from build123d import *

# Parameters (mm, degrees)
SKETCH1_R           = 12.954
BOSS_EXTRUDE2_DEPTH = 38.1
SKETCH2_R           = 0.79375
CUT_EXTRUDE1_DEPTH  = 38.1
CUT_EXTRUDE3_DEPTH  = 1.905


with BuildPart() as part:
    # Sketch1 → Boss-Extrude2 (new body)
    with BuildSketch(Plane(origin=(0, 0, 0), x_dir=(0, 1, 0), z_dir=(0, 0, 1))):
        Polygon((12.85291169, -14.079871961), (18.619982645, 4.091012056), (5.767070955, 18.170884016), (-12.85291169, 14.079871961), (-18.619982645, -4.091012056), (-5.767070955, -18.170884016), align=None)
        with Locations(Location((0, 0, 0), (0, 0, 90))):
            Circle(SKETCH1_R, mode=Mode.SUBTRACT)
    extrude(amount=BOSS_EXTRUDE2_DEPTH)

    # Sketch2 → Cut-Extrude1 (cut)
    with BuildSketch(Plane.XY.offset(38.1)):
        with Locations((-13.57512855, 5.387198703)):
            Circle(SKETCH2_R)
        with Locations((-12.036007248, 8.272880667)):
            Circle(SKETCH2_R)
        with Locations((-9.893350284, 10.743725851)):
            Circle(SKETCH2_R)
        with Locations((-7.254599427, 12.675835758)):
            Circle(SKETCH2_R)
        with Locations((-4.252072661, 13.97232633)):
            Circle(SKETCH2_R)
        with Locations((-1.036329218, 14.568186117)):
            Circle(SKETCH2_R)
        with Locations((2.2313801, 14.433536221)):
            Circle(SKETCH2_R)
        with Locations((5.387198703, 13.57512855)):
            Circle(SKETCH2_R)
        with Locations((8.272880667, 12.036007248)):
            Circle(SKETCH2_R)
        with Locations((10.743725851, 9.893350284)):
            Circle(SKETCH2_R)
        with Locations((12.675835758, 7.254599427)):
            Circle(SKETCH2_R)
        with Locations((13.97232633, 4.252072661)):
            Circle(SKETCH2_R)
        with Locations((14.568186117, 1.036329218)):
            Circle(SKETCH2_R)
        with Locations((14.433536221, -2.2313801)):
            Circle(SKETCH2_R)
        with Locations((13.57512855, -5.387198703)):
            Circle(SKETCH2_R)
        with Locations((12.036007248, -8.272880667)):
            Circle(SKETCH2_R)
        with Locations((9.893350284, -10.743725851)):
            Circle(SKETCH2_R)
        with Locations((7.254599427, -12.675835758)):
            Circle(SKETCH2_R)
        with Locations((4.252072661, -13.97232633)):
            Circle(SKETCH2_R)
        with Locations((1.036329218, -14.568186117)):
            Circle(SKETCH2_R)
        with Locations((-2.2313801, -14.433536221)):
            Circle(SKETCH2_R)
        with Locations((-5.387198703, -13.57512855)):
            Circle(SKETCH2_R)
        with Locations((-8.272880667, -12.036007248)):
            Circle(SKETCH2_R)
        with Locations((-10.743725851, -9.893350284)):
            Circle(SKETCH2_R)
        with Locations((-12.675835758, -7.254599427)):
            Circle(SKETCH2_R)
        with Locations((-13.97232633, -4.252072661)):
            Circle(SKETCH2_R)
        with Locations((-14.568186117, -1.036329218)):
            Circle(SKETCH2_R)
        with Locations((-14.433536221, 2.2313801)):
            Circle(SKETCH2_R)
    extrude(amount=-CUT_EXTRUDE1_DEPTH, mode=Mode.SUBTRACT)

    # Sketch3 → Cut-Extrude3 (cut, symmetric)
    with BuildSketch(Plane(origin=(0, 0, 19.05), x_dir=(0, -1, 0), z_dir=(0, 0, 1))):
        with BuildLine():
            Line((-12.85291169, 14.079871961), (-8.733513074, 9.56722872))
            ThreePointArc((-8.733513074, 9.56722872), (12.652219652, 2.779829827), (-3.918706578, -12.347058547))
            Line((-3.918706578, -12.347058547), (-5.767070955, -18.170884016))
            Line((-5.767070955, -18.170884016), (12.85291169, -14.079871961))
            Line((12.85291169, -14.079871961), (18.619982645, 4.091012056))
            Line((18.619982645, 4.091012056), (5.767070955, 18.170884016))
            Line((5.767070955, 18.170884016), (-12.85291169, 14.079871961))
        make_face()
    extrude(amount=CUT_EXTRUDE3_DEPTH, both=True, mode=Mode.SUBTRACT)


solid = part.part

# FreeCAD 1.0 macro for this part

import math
import FreeCAD as App
import Part
import Sketcher

V = App.Vector
Q = App.Units.Quantity


def add_polygon(sketch, points):
    """Adds a closed chain of lines whose ends are joined by coincident constraints."""
    first, n = sketch.GeometryCount, len(points)
    for a, b in zip(points, points[1:] + points[:1]):
        sketch.addGeometry(Part.LineSegment(App.Vector(*a, 0), App.Vector(*b, 0)), False)
    for i in range(n):
        sketch.addConstraint(Sketcher.Constraint("Coincident", first + i, 2, first + (i + 1) % n, 1))

doc = App.newDocument("Part")
body = doc.addObject("PartDesign::Body", "Body")

# Sketch on XY plane
sketch1 = body.newObject("Sketcher::SketchObject", "Sketch")
sketch1.AttachmentSupport = (doc.getObject("XY_Plane"), [""])
sketch1.MapMode = "FlatFace"
add_polygon(sketch1, [(14, 13), (-4, 19), (-18, 6), (-14, -13), (4, -19), (18, -6)])  # lines 0-5
sketch1.addGeometry(Part.Circle(V(0, 0, 0), V(0, 0, 1), 13), False)  # 6
sketch1.addConstraint([
    Sketcher.Constraint("Coincident", 6, 3, -1, 1),
    Sketcher.Constraint("Symmetric", 0, 2, 3, 2, -1, 1),
    Sketcher.Constraint("Symmetric", 1, 2, 4, 2, -1, 1),
    Sketcher.Constraint("Symmetric", 2, 2, 5, 2, -1, 1),
    Sketcher.Constraint("Equal", 0, 1),
    Sketcher.Constraint("Equal", 1, 2),
    Sketcher.Constraint("Diameter", 6, Q("1.02 in")),
    Sketcher.Constraint("DistanceY", 4, 2, 1, 2, Q("0.4541001 in")),
    Sketcher.Constraint("DistanceX", 2, 2, -1, 1, Q("14.079872 mm")),
    Sketcher.Constraint("DistanceY", 2, 2, -1, 1, Q("12.852912 mm")),
    Sketcher.Constraint("DistanceX", 1, 2, 0, 2, Q("14.079872 mm")),
])
pad1 = body.newObject("PartDesign::Pad", "Pad")
pad1.Profile = sketch1
pad1.Length = Q("1.5 in")

# Sketch on XY plane
sketch2 = body.newObject("Sketcher::SketchObject", "Sketch001")
sketch2.AttachmentSupport = (doc.getObject("XY_Plane"), [""])
sketch2.MapMode = "FlatFace"
sketch2.AttachmentOffset = App.Placement(V(0, 0, 1.5 * 25.4), App.Rotation())
sketch2.addGeometry([
    Part.Circle(V(-13.6, 5.4, 0), V(0, 0, 1), 0.8),  # 0
    Part.Circle(V(-12, 8.3, 0), V(0, 0, 1), 0.8),  # 1
    Part.Circle(V(-9.9, 10.7, 0), V(0, 0, 1), 0.8),  # 2
    Part.Circle(V(-7.3, 12.7, 0), V(0, 0, 1), 0.8),  # 3
    Part.Circle(V(-4.3, 14, 0), V(0, 0, 1), 0.8),  # 4
    Part.Circle(V(-1, 14.6, 0), V(0, 0, 1), 0.8),  # 5
    Part.Circle(V(2.2, 14.4, 0), V(0, 0, 1), 0.8),  # 6
    Part.Circle(V(5.4, 13.6, 0), V(0, 0, 1), 0.8),  # 7
    Part.Circle(V(8.3, 12, 0), V(0, 0, 1), 0.8),  # 8
    Part.Circle(V(10.7, 9.9, 0), V(0, 0, 1), 0.8),  # 9
    Part.Circle(V(12.7, 7.3, 0), V(0, 0, 1), 0.8),  # 10
    Part.Circle(V(14, 4.3, 0), V(0, 0, 1), 0.8),  # 11
    Part.Circle(V(14.6, 1, 0), V(0, 0, 1), 0.8),  # 12
    Part.Circle(V(14.4, -2.2, 0), V(0, 0, 1), 0.8),  # 13
    Part.Circle(V(13.6, -5.4, 0), V(0, 0, 1), 0.8),  # 14
    Part.Circle(V(12, -8.3, 0), V(0, 0, 1), 0.8),  # 15
    Part.Circle(V(9.9, -10.7, 0), V(0, 0, 1), 0.8),  # 16
    Part.Circle(V(7.3, -12.7, 0), V(0, 0, 1), 0.8),  # 17
    Part.Circle(V(4.3, -14, 0), V(0, 0, 1), 0.8),  # 18
    Part.Circle(V(1, -14.6, 0), V(0, 0, 1), 0.8),  # 19
    Part.Circle(V(-2.2, -14.4, 0), V(0, 0, 1), 0.8),  # 20
    Part.Circle(V(-5.4, -13.6, 0), V(0, 0, 1), 0.8),  # 21
    Part.Circle(V(-8.3, -12, 0), V(0, 0, 1), 0.8),  # 22
    Part.Circle(V(-10.7, -9.9, 0), V(0, 0, 1), 0.8),  # 23
    Part.Circle(V(-12.7, -7.3, 0), V(0, 0, 1), 0.8),  # 24
    Part.Circle(V(-14, -4.3, 0), V(0, 0, 1), 0.8),  # 25
    Part.Circle(V(-14.6, -1, 0), V(0, 0, 1), 0.8),  # 26
    Part.Circle(V(-14.4, 2.2, 0), V(0, 0, 1), 0.8),  # 27
], False)
sketch2.addConstraint([
    Sketcher.Constraint("Equal", 0, 1),
    Sketcher.Constraint("Equal", 1, 2),
    Sketcher.Constraint("Equal", 2, 3),
    Sketcher.Constraint("Equal", 3, 4),
    Sketcher.Constraint("Equal", 4, 5),
    Sketcher.Constraint("Equal", 5, 6),
    Sketcher.Constraint("Equal", 6, 7),
    Sketcher.Constraint("Equal", 7, 8),
    Sketcher.Constraint("Equal", 8, 9),
    Sketcher.Constraint("Equal", 9, 10),
    Sketcher.Constraint("Equal", 10, 11),
    Sketcher.Constraint("Equal", 11, 12),
    Sketcher.Constraint("Equal", 12, 13),
    Sketcher.Constraint("Equal", 13, 14),
    Sketcher.Constraint("Equal", 14, 15),
    Sketcher.Constraint("Equal", 15, 16),
    Sketcher.Constraint("Equal", 16, 17),
    Sketcher.Constraint("Equal", 17, 18),
    Sketcher.Constraint("Equal", 18, 19),
    Sketcher.Constraint("Equal", 19, 20),
    Sketcher.Constraint("Equal", 20, 21),
    Sketcher.Constraint("Equal", 21, 22),
    Sketcher.Constraint("Equal", 22, 23),
    Sketcher.Constraint("Equal", 23, 24),
    Sketcher.Constraint("Equal", 24, 25),
    Sketcher.Constraint("Equal", 25, 26),
    Sketcher.Constraint("Equal", 26, 27),
    Sketcher.Constraint("Symmetric", 0, 3, 14, 3, -1, 1),
    Sketcher.Constraint("Symmetric", 1, 3, 15, 3, -1, 1),
    Sketcher.Constraint("Symmetric", 2, 3, 16, 3, -1, 1),
    Sketcher.Constraint("Symmetric", 3, 3, 17, 3, -1, 1),
    Sketcher.Constraint("Symmetric", 4, 3, 18, 3, -1, 1),
    Sketcher.Constraint("Symmetric", 5, 3, 19, 3, -1, 1),
    Sketcher.Constraint("Symmetric", 6, 3, 20, 3, -1, 1),
    Sketcher.Constraint("Symmetric", 7, 3, 21, 3, -1, 1),
    Sketcher.Constraint("Symmetric", 8, 3, 22, 3, -1, 1),
    Sketcher.Constraint("Symmetric", 9, 3, 23, 3, -1, 1),
    Sketcher.Constraint("Symmetric", 10, 3, 24, 3, -1, 1),
    Sketcher.Constraint("Symmetric", 11, 3, 25, 3, -1, 1),
    Sketcher.Constraint("Symmetric", 12, 3, 26, 3, -1, 1),
    Sketcher.Constraint("Symmetric", 13, 3, 27, 3, -1, 1),
    Sketcher.Constraint("Diameter", 0, Q("0.0625 in")),
    Sketcher.Constraint("DistanceY", -1, 1, 0, 3, Q("5.387199 mm")),
    Sketcher.Constraint("DistanceX", 3, 3, -1, 1, Q("7.254599 mm")),
    Sketcher.Constraint("DistanceX", -1, 1, 7, 3, Q("5.387199 mm")),
    Sketcher.Constraint("DistanceY", -1, 1, 10, 3, Q("7.254599 mm")),
    Sketcher.Constraint("DistanceY", 2, 3, 4, 3, Q("3.2286 mm")),
    Sketcher.Constraint("DistanceX", 0, 3, 5, 3, Q("12.538799 mm")),
    Sketcher.Constraint("DistanceY", 3, 3, 6, 3, Q("1.7577 mm")),
    Sketcher.Constraint("DistanceX", 6, 3, 8, 3, Q("6.041501 mm")),
    Sketcher.Constraint("DistanceX", 4, 3, 9, 3, Q("14.995799 mm")),
    Sketcher.Constraint("DistanceX", 9, 3, 11, 3, Q("3.2286 mm")),
    Sketcher.Constraint("DistanceY", 12, 3, 7, 3, Q("12.538799 mm")),
    Sketcher.Constraint("DistanceX", 10, 3, 13, 3, Q("1.7577 mm")),
    Sketcher.Constraint("DistanceY", 15, 3, 13, 3, Q("6.041501 mm")),
    Sketcher.Constraint("DistanceY", 16, 3, 11, 3, Q("14.995799 mm")),
    Sketcher.Constraint("DistanceX", 0, 3, -1, 1, Q("13.575129 mm")),
    Sketcher.Constraint("DistanceY", -1, 1, 1, 3, Q("8.272881 mm")),
    Sketcher.Constraint("DistanceX", 2, 3, -1, 1, Q("9.89335 mm")),
    Sketcher.Constraint("DistanceX", -1, 1, 6, 3, Q("2.23138 mm")),
    Sketcher.Constraint("DistanceY", -1, 1, 7, 3, Q("13.575129 mm")),
    Sketcher.Constraint("DistanceY", -1, 1, 9, 3, Q("9.89335 mm")),
    Sketcher.Constraint("DistanceX", 0, 3, 1, 3, Q("1.539121 mm")),
    Sketcher.Constraint("DistanceY", 2, 3, 3, 3, Q("1.93211 mm")),
    Sketcher.Constraint("DistanceY", 4, 3, 5, 3, Q("0.59586 mm")),
    Sketcher.Constraint("DistanceX", 4, 3, 7, 3, Q("9.639271 mm")),
    Sketcher.Constraint("DistanceY", 8, 3, 7, 3, Q("1.539121 mm")),
    Sketcher.Constraint("DistanceY", 8, 3, 6, 3, Q("2.397529 mm")),
    Sketcher.Constraint("DistanceX", 9, 3, 10, 3, Q("1.93211 mm")),
    Sketcher.Constraint("DistanceX", 11, 3, 12, 3, Q("0.59586 mm")),
])
pocket1 = body.newObject("PartDesign::Pocket", "Pocket")
pocket1.Profile = sketch2
pocket1.Length = Q("1.5 in")

# Sketch on XY plane
sketch3 = body.newObject("Sketcher::SketchObject", "Sketch002")
sketch3.AttachmentSupport = (doc.getObject("XY_Plane"), [""])
sketch3.MapMode = "FlatFace"
sketch3.AttachmentOffset = App.Placement(V(0, 0, 0.75 * 25.4), App.Rotation())
sketch3.addGeometry([
    Part.LineSegment(V(14, 13, 0), V(10, 9, 0)),  # 0
    Part.ArcOfCircle(Part.Circle(V(0, 0, 0), V(0, 0, 1), 13), math.radians(162), math.radians(402)),  # 1
    Part.LineSegment(V(-12, 4, 0), V(-18, 6, 0)),  # 2
    Part.LineSegment(V(-18, 6, 0), V(-14, -13, 0)),  # 3
    Part.LineSegment(V(-14, -13, 0), V(4, -19, 0)),  # 4
    Part.LineSegment(V(4, -19, 0), V(18, -6, 0)),  # 5
    Part.LineSegment(V(18, -6, 0), V(14, 13, 0)),  # 6
], False)
sketch3.addConstraint([
    Sketcher.Constraint("Coincident", 0, 2, 1, 2),
    Sketcher.Constraint("Coincident", 1, 1, 2, 1),
    Sketcher.Constraint("Coincident", 2, 2, 3, 1),
    Sketcher.Constraint("Coincident", 3, 2, 4, 1),
    Sketcher.Constraint("Coincident", 4, 2, 5, 1),
    Sketcher.Constraint("Coincident", 5, 2, 6, 1),
    Sketcher.Constraint("Coincident", 6, 2, 0, 1),
    Sketcher.Constraint("Coincident", 1, 3, -1, 1),
    Sketcher.Constraint("Symmetric", 2, 2, 5, 2, -1, 1),
    Sketcher.Constraint("Symmetric", 3, 2, 6, 2, -1, 1),
    Sketcher.Constraint("Parallel", 2, 4),
    Sketcher.Constraint("Parallel", 0, 5),
    Sketcher.Constraint("Equal", 0, 2),
    Sketcher.Constraint("Equal", 3, 4),
    Sketcher.Constraint("Equal", 4, 5),
    Sketcher.Constraint("Radius", 1, Q("0.51 in")),
    Sketcher.Constraint("DistanceY", 3, 2, 1, 1, Q("0.6602999 in")),
    Sketcher.Constraint("DistanceX", 3, 2, 0, 2, Q("23.647101 mm")),
    Sketcher.Constraint("DistanceY", 0, 2, 6, 2, Q("4.119399 mm")),
])
pocket2 = body.newObject("PartDesign::Pocket", "Pocket001")
pocket2.Profile = sketch3
pocket2.Length = Q("0.15 in")
pocket2.Midplane = True

doc.recompute()
